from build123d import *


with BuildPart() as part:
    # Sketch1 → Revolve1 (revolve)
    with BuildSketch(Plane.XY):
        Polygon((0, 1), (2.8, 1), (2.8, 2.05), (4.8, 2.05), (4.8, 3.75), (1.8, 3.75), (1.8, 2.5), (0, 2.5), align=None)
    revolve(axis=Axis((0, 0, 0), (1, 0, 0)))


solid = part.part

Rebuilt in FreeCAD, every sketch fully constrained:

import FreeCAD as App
import Part
import Sketcher
from FreeCAD import Vector
Q = App.Units.Quantity


def add_polygon(sketch, points):
    """Adds a closed chain of lines whose ends are joined by coincident constraints."""
    first, n = sketch.GeometryCount, len(points)
    for a, b in zip(points, points[1:] + points[:1]):
        sketch.addGeometry(Part.LineSegment(App.Vector(*a, 0), App.Vector(*b, 0)), False)
    for i in range(n):
        sketch.addConstraint(Sketcher.Constraint("Coincident", first + i, 2, first + (i + 1) % n, 1))

doc = App.newDocument("Part")
body = doc.addObject("PartDesign::Body", "Body")

# Sketch on XY plane
sketch1 = body.newObject("Sketcher::SketchObject", "Sketch")
sketch1.AttachmentSupport = (doc.getObject("XY_Plane"), [""])
sketch1.MapMode = "FlatFace"
add_polygon(sketch1, [(0, 1), (2.8, 1), (2.8, 2.05), (4.8, 2.05), (4.8, 3.75), (1.8, 3.75), (1.8, 2.5), (0, 2.5)])  # lines 0-7
sketch1.addConstraint([
    Sketcher.Constraint("Horizontal", 0),
    Sketcher.Constraint("Vertical", 1),
    Sketcher.Constraint("Horizontal", 2),
    Sketcher.Constraint("Vertical", 3),
    Sketcher.Constraint("Horizontal", 4),
    Sketcher.Constraint("Vertical", 5),
    Sketcher.Constraint("Horizontal", 6),
    Sketcher.Constraint("Vertical", 7),
    Sketcher.Constraint("PointOnObject", 6, 2, -2),
    Sketcher.Constraint("DistanceX", 2, 1, 2, 2, Q("2 mm")),
    Sketcher.Constraint("DistanceX", 4, 2, 4, 1, Q("3 mm")),
    Sketcher.Constraint("DistanceX", 0, 1, 0, 2, Q("2.8 mm")),
    Sketcher.Constraint("DistanceY", 3, 1, 3, 2, Q("1.7 mm")),
    Sketcher.Constraint("DistanceY", 7, 2, 7, 1, Q("1.5 mm")),
    Sketcher.Constraint("DistanceY", -1, 1, 0, 2, Q("1 mm")),
    Sketcher.Constraint("DistanceY", 1, 1, 1, 2, Q("1.05 mm")),
])
revolution = body.newObject("PartDesign::Revolution", "Revolution")
revolution.Profile = sketch1
revolution.ReferenceAxis = (sketch1, ["H_Axis"])
revolution.Angle = 360

doc.recompute()
